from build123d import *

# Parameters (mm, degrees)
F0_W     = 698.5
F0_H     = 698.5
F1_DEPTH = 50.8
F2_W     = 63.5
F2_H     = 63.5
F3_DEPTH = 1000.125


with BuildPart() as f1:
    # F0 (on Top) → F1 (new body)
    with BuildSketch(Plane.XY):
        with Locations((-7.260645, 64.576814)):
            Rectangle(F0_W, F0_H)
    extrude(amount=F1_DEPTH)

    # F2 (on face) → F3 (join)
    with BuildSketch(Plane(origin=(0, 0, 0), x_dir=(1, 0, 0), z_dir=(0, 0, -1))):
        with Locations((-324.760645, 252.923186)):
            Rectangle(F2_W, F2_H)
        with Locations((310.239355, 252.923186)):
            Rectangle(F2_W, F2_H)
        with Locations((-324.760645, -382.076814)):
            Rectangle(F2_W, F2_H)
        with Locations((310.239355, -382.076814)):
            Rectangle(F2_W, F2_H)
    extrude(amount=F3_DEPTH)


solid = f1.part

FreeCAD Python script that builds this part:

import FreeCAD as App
import Part
import Sketcher

V = App.Vector
Q = App.Units.Quantity


def add_polygon(sketch, points):
    """Adds a closed chain of lines whose ends are joined by coincident constraints."""
    first, n = sketch.GeometryCount, len(points)
    for a, b in zip(points, points[1:] + points[:1]):
        sketch.addGeometry(Part.LineSegment(App.Vector(*a, 0), App.Vector(*b, 0)), False)
    for i in range(n):
        sketch.addConstraint(Sketcher.Constraint("Coincident", first + i, 2, first + (i + 1) % n, 1))

doc = App.newDocument("Part")
body = doc.addObject("PartDesign::Body", "Body")

sketch1 = doc.addObject("Sketcher::SketchObject", "Sketch")
body.addObject(sketch1)
sketch1.AttachmentSupport = (doc.XY_Plane, [""])
sketch1.MapMode = "FlatFace"
add_polygon(sketch1, [(-357, 414), (-357, -285), (342, -285), (342, 414)])
sketch1.addConstraint([
    Sketcher.Constraint("Vertical", 0),
    Sketcher.Constraint("Horizontal", 1),
    Sketcher.Constraint("Vertical", 2),
    Sketcher.Constraint("Horizontal", 3),
    Sketcher.Constraint("Equal", 3, 0),
    Sketcher.Constraint("DistanceX", 1, 1, 1, 2, Q("27.5 in")),
    Sketcher.Constraint("DistanceX", 0, 2, -1, 1, 356.510645),
    Sketcher.Constraint("DistanceY", 0, 2, -1, 1, 284.673186),
])
pad1 = doc.addObject("PartDesign::Pad", "Pad")
body.addObject(pad1)
pad1.Profile = sketch1
pad1.Length = Q("2 in")

sketch2 = doc.addObject("Sketcher::SketchObject", "Sketch001")
body.addObject(sketch2)
sketch2.AttachmentSupport = (doc.XY_Plane, [""])
sketch2.MapMode = "FlatFace"
add_polygon(sketch2, [(-357, -285), (-357, -221), (-293, -221), (-293, -285)])
add_polygon(sketch2, [(278, -285), (278, -221), (342, -221), (342, -285)])
add_polygon(sketch2, [(-357, 350), (-357, 414), (-293, 414), (-293, 350)])
add_polygon(sketch2, [(278, 350), (278, 414), (342, 414), (342, 350)])
sketch2.addConstraint([
    Sketcher.Constraint("Vertical", 0),
    Sketcher.Constraint("Horizontal", 1),
    Sketcher.Constraint("Vertical", 2),
    Sketcher.Constraint("Horizontal", 3),
    Sketcher.Constraint("Vertical", 4),
    Sketcher.Constraint("Horizontal", 5),
    Sketcher.Constraint("Vertical", 6),
    Sketcher.Constraint("Horizontal", 7),
    Sketcher.Constraint("Vertical", 8),
    Sketcher.Constraint("Horizontal", 9),
    Sketcher.Constraint("Vertical", 10),
    Sketcher.Constraint("Horizontal", 11),
    Sketcher.Constraint("Vertical", 12),
    Sketcher.Constraint("Horizontal", 13),
    Sketcher.Constraint("Vertical", 14),
    Sketcher.Constraint("Horizontal", 15),
    Sketcher.Constraint("Horizontal", 1, 2, 4, 2),
    Sketcher.Constraint("Horizontal", 3, 2, 6, 2),
    Sketcher.Constraint("Horizontal", 9, 2, 12, 2),
    Sketcher.Constraint("Horizontal", 11, 2, 14, 2),
    Sketcher.Constraint("Vertical", 3, 2, 8, 2),
    Sketcher.Constraint("Vertical", 2, 2, 9, 2),
    Sketcher.Constraint("Vertical", 7, 2, 12, 2),
    Sketcher.Constraint("Vertical", 6, 2, 13, 2),
    Sketcher.Constraint("Equal", 3, 5),
    Sketcher.Constraint("Equal", 15, 0),
    Sketcher.Constraint("Equal", 6, 8),
    Sketcher.Constraint("DistanceX", 1, 1, 1, 2, Q("2.5 in")),
    Sketcher.Constraint("DistanceX", 0, 2, 4, 2, Q("25 in")),
    Sketcher.Constraint("DistanceY", 0, 2, 8, 2, Q("25 in")),
    Sketcher.Constraint("DistanceX", 0, 2, -1, 1, 356.510645),
    Sketcher.Constraint("DistanceY", 0, 2, -1, 1, 221.173186),
])
pad2 = doc.addObject("PartDesign::Pad", "Pad001")
body.addObject(pad2)
pad2.Profile = sketch2
pad2.Length = Q("39.375 in")
pad2.Reversed = True

doc.recompute()
